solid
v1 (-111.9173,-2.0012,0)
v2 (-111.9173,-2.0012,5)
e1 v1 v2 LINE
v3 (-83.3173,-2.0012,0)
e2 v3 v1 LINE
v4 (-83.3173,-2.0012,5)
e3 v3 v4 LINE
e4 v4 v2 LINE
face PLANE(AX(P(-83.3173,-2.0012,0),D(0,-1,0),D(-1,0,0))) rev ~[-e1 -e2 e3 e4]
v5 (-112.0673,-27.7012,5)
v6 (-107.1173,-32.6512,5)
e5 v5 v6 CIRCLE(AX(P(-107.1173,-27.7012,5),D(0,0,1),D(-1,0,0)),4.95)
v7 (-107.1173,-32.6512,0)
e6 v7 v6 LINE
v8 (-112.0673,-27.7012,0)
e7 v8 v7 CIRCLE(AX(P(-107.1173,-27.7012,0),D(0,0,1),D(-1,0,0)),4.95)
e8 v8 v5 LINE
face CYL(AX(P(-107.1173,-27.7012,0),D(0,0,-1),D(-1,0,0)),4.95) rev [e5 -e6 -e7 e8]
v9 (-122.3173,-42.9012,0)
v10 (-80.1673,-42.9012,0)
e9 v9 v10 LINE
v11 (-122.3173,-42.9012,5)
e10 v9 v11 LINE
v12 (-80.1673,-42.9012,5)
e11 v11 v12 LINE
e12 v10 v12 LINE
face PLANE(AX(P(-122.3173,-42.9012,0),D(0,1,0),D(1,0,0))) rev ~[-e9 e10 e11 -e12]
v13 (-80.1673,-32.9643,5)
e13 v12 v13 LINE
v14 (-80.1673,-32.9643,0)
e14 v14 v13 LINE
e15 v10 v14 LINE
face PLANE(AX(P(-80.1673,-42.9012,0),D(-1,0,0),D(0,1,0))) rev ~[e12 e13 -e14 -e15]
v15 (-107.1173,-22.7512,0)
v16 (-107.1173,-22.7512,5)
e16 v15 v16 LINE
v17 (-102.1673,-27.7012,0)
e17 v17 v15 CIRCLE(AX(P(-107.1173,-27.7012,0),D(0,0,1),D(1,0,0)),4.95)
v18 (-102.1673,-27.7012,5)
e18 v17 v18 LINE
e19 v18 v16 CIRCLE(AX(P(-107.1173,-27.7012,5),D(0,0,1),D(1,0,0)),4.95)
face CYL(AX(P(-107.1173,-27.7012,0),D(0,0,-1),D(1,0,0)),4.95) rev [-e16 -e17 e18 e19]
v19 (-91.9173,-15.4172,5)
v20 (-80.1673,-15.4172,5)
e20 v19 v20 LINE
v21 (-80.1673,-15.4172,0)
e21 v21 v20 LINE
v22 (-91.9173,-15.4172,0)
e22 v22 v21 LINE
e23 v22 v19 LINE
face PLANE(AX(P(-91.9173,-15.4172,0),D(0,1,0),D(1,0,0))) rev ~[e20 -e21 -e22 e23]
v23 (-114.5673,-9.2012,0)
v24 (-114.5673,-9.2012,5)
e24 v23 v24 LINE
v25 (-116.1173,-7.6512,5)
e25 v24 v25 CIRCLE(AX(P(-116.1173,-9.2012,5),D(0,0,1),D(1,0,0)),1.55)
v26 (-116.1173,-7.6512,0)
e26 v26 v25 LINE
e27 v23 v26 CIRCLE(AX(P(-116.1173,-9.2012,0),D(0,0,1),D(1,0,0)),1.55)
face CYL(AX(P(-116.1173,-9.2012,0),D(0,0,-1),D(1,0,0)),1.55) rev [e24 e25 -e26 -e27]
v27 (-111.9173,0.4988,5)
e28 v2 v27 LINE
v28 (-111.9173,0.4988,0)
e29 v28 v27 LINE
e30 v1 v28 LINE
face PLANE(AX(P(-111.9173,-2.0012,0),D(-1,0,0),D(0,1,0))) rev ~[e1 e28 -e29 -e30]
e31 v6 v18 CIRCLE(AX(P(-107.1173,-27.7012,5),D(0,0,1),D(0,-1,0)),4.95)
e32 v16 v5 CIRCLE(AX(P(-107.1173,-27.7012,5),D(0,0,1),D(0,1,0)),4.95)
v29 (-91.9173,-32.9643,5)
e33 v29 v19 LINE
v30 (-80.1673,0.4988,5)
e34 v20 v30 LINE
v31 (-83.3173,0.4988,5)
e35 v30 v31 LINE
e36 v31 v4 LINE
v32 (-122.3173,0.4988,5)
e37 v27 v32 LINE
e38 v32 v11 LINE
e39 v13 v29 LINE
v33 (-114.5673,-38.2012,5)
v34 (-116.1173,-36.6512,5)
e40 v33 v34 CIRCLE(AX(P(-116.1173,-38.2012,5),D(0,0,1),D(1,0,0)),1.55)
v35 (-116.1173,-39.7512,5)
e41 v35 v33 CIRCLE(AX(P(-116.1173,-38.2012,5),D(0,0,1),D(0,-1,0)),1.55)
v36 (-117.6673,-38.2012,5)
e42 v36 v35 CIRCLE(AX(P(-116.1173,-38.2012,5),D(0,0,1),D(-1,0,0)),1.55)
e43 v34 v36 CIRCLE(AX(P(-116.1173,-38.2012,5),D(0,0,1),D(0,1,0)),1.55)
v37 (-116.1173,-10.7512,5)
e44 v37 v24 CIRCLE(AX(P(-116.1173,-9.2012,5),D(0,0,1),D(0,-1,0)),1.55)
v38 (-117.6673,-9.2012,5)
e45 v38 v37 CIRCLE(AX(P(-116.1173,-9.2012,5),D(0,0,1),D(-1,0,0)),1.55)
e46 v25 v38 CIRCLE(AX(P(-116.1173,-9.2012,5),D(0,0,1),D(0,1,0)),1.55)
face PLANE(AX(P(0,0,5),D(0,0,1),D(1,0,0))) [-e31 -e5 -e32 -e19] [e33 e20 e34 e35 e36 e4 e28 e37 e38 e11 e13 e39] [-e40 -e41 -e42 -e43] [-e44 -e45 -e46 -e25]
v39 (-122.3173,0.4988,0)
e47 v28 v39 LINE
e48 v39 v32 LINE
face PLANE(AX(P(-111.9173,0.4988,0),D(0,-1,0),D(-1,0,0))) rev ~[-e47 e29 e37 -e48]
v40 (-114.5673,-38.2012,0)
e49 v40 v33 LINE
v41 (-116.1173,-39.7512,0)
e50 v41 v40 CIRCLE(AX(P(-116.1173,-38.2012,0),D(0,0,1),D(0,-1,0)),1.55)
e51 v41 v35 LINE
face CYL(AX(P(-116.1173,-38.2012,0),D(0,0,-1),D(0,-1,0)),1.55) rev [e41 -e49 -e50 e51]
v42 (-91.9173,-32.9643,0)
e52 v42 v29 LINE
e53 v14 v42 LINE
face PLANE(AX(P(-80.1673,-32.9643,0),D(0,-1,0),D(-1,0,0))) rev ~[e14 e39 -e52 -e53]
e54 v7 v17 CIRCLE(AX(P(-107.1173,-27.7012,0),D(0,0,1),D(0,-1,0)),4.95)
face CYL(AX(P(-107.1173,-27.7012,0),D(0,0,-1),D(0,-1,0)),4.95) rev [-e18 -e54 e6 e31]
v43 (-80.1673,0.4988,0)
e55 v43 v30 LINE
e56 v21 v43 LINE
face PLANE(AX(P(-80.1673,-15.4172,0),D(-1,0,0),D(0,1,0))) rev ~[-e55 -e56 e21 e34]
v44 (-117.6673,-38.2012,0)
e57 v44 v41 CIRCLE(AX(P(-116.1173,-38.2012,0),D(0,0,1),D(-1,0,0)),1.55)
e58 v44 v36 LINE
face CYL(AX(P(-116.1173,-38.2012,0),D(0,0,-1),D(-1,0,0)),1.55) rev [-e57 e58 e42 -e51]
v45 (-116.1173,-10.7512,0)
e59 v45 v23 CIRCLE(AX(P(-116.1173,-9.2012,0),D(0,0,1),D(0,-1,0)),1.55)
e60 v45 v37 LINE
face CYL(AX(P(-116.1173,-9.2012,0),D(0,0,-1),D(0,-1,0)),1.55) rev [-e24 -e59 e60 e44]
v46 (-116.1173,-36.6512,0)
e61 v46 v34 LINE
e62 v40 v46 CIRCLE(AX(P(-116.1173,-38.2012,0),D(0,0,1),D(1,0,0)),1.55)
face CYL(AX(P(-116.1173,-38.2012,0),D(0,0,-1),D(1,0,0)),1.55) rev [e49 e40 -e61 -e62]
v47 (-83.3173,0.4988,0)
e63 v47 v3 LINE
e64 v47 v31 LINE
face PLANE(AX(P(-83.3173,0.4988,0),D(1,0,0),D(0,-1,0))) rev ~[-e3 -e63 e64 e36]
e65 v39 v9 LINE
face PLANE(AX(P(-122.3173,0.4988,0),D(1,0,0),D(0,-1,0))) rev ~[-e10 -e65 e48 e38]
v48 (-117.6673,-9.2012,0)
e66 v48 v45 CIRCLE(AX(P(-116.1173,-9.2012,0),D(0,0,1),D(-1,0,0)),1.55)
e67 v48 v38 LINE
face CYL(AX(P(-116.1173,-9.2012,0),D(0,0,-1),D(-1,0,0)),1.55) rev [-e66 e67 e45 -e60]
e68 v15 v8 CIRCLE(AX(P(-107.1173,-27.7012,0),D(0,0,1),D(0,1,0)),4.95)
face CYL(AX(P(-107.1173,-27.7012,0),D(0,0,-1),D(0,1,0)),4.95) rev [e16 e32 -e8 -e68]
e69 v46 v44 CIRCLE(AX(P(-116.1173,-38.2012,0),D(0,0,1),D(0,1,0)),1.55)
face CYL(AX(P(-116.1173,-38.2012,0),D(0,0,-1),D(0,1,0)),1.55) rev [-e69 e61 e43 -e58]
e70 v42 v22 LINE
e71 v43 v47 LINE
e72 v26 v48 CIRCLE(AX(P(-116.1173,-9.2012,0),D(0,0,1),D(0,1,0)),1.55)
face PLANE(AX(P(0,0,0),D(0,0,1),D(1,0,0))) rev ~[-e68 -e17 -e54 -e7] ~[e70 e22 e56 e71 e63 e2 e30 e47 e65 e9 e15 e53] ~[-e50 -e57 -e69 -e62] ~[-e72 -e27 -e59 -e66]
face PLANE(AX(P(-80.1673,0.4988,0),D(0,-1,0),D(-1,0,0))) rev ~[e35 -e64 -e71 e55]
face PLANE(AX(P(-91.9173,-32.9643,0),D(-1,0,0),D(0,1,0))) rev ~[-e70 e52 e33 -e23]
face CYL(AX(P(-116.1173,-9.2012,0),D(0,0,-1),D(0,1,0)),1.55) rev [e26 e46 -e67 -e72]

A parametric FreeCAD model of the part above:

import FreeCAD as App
import Part
import Sketcher
from FreeCAD import Vector


def add_polygon(sketch, points):
    """Adds a closed chain of lines whose ends are joined by coincident constraints."""
    first, n = sketch.GeometryCount, len(points)
    for a, b in zip(points, points[1:] + points[:1]):
        sketch.addGeometry(Part.LineSegment(App.Vector(*a, 0), App.Vector(*b, 0)), False)
    for i in range(n):
        sketch.addConstraint(Sketcher.Constraint("Coincident", first + i, 2, first + (i + 1) % n, 1))

doc = App.newDocument("Part")
params = doc.addObject("Spreadsheet::Sheet", "Params")
for row, (alias, value) in enumerate([
    ("sketch1_diameter", "3.1 mm"),
    ("sketch1_diameter2", "9.9 mm"),
    ("sketch1_width", "10.4 mm"),
    ("sketch1_width2", "28.6 mm"),
    ("sketch1_height", "43.4 mm"),
    ("pad1_length", "5 mm"),
], start=1):
    params.set(f"A{row}", alias)
    params.set(f"B{row}", "=" + value)
    params.setAlias(f"B{row}", alias)

body = doc.addObject("PartDesign::Body", "Body")

# Sketch on XY plane
sketch1 = body.newObject("Sketcher::SketchObject", "Sketch")
sketch1.AttachmentSupport = (doc.getObject("XY_Plane"), [""])
sketch1.MapMode = "FlatFace"
add_polygon(sketch1, [(-111.9, 0.5), (-122.3, 0.5), (-122.3, -42.9), (-80.2, -42.9), (-80.2, -33), (-91.9, -33), (-91.9, -15.4), (-80.2, -15.4), (-80.2, 0.5), (-83.3, 0.5), (-83.3, -2), (-111.9, -2)])  # lines 0-11
sketch1.addGeometry(Part.Circle(Vector(-116.1, -38.2, 0), Vector(0, 0, 1), 1.5), False)  # 12
sketch1.addGeometry(Part.Circle(Vector(-107.1, -27.7, 0), Vector(0, 0, 1), 4.9), False)  # 13
sketch1.addGeometry(Part.Circle(Vector(-116.1, -9.2, 0), Vector(0, 0, 1), 1.5), False)  # 14
sketch1.addConstraint([
    Sketcher.Constraint("Horizontal", 0),
    Sketcher.Constraint("Vertical", 1),
    Sketcher.Constraint("Horizontal", 2),
    Sketcher.Constraint("Vertical", 3),
    Sketcher.Constraint("Horizontal", 4),
    Sketcher.Constraint("Vertical", 5),
    Sketcher.Constraint("Horizontal", 6),
    Sketcher.Constraint("Vertical", 7),
    Sketcher.Constraint("Horizontal", 8),
    Sketcher.Constraint("Vertical", 9),
    Sketcher.Constraint("Horizontal", 10),
    Sketcher.Constraint("Vertical", 11),
    Sketcher.Constraint("Equal", 12, 14),
    Sketcher.Constraint("Horizontal", 0, 2, 7, 2),
    Sketcher.Constraint("Vertical", 12, 3, 14, 3),
    Sketcher.Constraint("Vertical", 3, 2, 6, 2),
    Sketcher.Constraint("Diameter", 12, 3.1),
    Sketcher.Constraint("Diameter", 13, 9.9),
    Sketcher.Constraint("DistanceX", 0, 2, 0, 1, 10.4),
    Sketcher.Constraint("DistanceX", 10, 2, 10, 1, 28.6),
    Sketcher.Constraint("DistanceY", 1, 2, 1, 1, 43.4),
    Sketcher.Constraint("DistanceY", 9, 2, 9, 1, 2.5),
    Sketcher.Constraint("DistanceX", 12, 3, 13, 3, 9.0),
    Sketcher.Constraint("DistanceY", 12, 3, 14, 3, 29.0),
    Sketcher.Constraint("DistanceX", 10, 2, 5, 2, 20.0),
    Sketcher.Constraint("DistanceX", 2, 1, 2, 2, 42.15),
    Sketcher.Constraint("DistanceY", 12, 3, 13, 3, 10.5),
    Sketcher.Constraint("DistanceX", 0, 2, 14, 3, 6.2),
    Sketcher.Constraint("DistanceY", 14, 3, 0, 2, 9.7),
    Sketcher.Constraint("DistanceY", 3, 1, 3, 2, 9.937),
    Sketcher.Constraint("DistanceY", 5, 1, 5, 2, 17.547),
    Sketcher.Constraint("DistanceX", 12, 3, -1, 1, 116.1173),
    Sketcher.Constraint("DistanceY", 12, 3, -1, 1, 38.2012),
])
sketch1.setExpression("Constraints[28]", "Params.sketch1_diameter")
sketch1.setExpression("Constraints[29]", "Params.sketch1_diameter2")
sketch1.setExpression("Constraints[30]", "Params.sketch1_width")
sketch1.setExpression("Constraints[31]", "Params.sketch1_width2")
sketch1.setExpression("Constraints[32]", "Params.sketch1_height")
pad1 = body.newObject("PartDesign::Pad", "Pad")
pad1.Profile = sketch1
pad1.setExpression("Length", "Params.pad1_length")

doc.recompute()
